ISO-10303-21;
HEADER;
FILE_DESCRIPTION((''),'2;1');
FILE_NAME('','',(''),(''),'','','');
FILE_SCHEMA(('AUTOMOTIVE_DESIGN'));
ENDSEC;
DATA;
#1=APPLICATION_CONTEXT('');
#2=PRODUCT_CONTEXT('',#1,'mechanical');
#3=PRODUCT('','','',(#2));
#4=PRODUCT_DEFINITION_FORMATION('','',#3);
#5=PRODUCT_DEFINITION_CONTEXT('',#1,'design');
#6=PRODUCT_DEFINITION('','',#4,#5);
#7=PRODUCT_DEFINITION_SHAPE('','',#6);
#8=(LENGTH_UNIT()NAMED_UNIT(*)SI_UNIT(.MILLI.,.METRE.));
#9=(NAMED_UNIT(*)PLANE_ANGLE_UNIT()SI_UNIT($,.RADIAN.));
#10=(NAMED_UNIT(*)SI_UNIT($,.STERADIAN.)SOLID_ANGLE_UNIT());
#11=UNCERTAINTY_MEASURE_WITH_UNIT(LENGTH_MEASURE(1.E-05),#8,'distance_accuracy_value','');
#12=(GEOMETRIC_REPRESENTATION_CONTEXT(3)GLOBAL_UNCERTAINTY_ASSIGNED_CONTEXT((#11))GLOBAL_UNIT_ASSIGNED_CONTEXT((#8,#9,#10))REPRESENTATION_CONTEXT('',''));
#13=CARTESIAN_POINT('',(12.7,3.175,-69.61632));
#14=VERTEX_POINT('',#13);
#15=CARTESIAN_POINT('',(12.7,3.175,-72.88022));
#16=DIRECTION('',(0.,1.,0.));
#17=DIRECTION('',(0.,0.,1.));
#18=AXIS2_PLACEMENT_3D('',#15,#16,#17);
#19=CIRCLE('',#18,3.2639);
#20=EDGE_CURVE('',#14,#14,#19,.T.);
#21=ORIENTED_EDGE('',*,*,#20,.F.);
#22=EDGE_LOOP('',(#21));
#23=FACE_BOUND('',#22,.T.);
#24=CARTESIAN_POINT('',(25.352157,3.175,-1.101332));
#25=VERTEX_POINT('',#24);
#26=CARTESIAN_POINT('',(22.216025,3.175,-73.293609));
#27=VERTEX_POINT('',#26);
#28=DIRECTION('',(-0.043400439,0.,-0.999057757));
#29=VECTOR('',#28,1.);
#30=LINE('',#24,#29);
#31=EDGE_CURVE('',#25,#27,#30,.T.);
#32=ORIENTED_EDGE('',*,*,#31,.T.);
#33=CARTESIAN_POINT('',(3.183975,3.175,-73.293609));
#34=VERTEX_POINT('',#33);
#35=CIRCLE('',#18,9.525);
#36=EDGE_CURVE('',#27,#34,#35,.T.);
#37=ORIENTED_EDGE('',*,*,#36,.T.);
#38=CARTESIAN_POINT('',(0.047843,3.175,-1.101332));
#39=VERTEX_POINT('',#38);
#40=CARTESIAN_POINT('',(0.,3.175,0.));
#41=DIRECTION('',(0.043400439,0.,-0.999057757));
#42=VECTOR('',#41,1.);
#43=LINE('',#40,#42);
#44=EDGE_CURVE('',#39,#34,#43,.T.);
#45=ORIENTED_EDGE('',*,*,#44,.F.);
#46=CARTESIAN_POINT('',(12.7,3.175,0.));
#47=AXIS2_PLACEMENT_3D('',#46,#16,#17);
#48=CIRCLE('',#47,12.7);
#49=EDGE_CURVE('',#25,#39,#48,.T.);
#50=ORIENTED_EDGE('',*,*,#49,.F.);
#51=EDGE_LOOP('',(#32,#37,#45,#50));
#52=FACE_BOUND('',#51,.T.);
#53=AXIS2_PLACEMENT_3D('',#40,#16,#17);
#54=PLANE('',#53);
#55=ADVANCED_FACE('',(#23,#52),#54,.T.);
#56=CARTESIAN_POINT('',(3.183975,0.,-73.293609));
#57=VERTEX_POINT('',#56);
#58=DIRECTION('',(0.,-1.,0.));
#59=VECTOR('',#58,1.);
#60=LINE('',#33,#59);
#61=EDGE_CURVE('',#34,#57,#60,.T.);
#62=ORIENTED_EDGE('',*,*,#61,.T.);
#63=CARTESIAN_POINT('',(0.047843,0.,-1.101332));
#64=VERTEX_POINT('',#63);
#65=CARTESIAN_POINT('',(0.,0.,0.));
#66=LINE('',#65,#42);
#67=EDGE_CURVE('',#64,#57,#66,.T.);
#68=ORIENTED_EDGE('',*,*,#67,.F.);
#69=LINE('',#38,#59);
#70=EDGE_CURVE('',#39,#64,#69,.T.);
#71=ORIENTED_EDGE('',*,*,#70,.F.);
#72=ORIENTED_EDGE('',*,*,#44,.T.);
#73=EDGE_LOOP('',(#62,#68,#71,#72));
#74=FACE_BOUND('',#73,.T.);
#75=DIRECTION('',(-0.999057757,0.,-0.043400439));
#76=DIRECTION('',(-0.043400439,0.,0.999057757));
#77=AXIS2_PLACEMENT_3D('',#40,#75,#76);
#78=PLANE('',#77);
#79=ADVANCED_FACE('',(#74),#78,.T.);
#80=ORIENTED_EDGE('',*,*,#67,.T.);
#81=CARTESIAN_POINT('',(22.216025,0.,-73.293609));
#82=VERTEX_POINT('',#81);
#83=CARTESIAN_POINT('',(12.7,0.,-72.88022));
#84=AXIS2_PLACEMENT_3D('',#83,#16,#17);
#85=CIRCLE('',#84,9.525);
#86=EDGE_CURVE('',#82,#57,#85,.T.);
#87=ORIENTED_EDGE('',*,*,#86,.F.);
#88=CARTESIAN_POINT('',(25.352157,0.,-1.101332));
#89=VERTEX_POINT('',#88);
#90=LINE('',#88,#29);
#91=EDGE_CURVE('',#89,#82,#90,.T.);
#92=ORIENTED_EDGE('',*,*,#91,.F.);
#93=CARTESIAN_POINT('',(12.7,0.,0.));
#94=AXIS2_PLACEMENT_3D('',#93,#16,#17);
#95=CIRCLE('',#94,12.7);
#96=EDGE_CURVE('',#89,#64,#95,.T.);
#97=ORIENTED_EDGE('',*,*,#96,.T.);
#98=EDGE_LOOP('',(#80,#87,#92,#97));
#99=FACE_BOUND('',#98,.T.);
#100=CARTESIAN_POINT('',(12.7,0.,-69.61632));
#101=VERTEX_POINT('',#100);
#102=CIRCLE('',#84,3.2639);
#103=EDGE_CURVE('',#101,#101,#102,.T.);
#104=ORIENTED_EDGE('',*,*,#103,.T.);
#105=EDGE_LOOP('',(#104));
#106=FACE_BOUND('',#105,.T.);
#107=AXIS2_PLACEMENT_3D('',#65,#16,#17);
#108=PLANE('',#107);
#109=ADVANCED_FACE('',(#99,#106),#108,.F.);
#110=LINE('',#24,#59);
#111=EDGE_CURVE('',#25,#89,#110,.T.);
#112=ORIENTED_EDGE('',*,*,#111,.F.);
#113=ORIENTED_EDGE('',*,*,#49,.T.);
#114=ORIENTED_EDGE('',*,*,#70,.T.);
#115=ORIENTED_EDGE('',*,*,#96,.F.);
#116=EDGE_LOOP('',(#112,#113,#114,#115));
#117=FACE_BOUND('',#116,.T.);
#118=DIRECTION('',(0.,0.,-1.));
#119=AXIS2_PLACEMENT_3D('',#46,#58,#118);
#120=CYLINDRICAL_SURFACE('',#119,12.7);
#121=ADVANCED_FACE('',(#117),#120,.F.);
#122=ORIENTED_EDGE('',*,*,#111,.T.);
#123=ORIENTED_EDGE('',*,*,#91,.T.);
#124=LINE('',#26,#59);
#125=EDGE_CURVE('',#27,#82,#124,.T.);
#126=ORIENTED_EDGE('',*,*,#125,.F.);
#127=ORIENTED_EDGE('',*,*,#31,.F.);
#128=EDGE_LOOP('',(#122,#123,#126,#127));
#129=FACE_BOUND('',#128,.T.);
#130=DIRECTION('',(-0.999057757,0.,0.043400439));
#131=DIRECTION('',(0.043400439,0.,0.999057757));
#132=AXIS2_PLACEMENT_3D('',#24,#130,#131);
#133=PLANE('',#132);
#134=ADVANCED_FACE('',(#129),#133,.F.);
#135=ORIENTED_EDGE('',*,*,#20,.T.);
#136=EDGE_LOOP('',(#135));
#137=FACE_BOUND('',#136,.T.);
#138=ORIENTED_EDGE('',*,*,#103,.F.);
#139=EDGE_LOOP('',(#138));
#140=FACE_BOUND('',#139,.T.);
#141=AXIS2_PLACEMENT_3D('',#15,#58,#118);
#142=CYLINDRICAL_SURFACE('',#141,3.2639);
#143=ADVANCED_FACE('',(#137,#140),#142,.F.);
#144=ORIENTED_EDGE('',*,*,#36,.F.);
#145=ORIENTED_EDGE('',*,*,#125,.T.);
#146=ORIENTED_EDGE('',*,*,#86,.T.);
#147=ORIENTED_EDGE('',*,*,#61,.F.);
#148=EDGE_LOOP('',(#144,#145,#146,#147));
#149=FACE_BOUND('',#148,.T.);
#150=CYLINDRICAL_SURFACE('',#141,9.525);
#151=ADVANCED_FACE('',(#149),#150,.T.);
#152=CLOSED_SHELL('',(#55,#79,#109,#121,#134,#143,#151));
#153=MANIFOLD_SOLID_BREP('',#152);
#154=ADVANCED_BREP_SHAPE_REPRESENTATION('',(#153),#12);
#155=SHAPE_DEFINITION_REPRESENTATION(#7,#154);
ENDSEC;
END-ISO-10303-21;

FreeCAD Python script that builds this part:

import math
import FreeCAD as App
import Part
import Sketcher

V = App.Vector
Q = App.Units.Quantity

doc = App.newDocument("Part")
body = doc.addObject("PartDesign::Body", "Body")

sketch1 = body.newObject("Sketcher::SketchObject", "Sketch")
sketch1.AttachmentSupport = (doc.getObject("XZ_Plane"), [""])
sketch1.MapMode = "FlatFace"
sketch1.addGeometry([
    Part.LineSegment(V(3.183975, -73.293609, 0), V(0.047843, -1.101332, 0)),
    Part.ArcOfCircle(Part.Circle(V(12.7, 0, 0), V(0, 0, 1), 12.7), math.radians(-175.025113), math.radians(-4.974887)),
    Part.LineSegment(V(25.352157, -1.101332, 0), V(22.216025, -73.293609, 0)),
    Part.ArcOfCircle(Part.Circle(V(12.7, -72.88022, 0), V(0, 0, 1), 9.525), math.radians(-177.512557), math.radians(-2.487443)),
    Part.Circle(V(12.7, -72.88022, 0), V(0, 0, 1), 3.2639),
], False)
sketch1.addConstraint([
    Sketcher.Constraint("Coincident", 0, 2, 1, 1),
    Sketcher.Constraint("Coincident", 1, 2, 2, 1),
    Sketcher.Constraint("Coincident", 2, 2, 3, 2),
    Sketcher.Constraint("Coincident", 3, 1, 0, 1),
    Sketcher.Constraint("Coincident", 4, 3, 3, 3),
    Sketcher.Constraint("PointOnObject", 1, 3, -1),
    Sketcher.Constraint("Radius", 1, Q("0.5 in")),
    Sketcher.Constraint("Diameter", 4, Q("0.257 in")),
    Sketcher.Constraint("Radius", 3, Q("0.375 in")),
    Sketcher.Constraint("DistanceX", -1, 1, 1, 3, Q("0.5 in")),
    Sketcher.Constraint("DistanceX", -1, 1, 3, 3, Q("0.5 in")),
    Sketcher.Constraint("DistanceY", 3, 3, -1, 1, Q("2.8693 in")),
    Sketcher.Constraint("DistanceY", 2, 2, -1, 1, 73.293609),
    Sketcher.Constraint("DistanceY", 3, 1, -1, 1, 73.293609),
    Sketcher.Constraint("DistanceX", 2, 2, 1, 2, 3.136131),
    Sketcher.Constraint("DistanceX", 0, 2, 2, 2, 22.168182),
])
pad1 = body.newObject("PartDesign::Pad", "Pad")
pad1.Profile = sketch1
pad1.Length = Q("0.125 in")
pad1.Reversed = True

doc.recompute()
